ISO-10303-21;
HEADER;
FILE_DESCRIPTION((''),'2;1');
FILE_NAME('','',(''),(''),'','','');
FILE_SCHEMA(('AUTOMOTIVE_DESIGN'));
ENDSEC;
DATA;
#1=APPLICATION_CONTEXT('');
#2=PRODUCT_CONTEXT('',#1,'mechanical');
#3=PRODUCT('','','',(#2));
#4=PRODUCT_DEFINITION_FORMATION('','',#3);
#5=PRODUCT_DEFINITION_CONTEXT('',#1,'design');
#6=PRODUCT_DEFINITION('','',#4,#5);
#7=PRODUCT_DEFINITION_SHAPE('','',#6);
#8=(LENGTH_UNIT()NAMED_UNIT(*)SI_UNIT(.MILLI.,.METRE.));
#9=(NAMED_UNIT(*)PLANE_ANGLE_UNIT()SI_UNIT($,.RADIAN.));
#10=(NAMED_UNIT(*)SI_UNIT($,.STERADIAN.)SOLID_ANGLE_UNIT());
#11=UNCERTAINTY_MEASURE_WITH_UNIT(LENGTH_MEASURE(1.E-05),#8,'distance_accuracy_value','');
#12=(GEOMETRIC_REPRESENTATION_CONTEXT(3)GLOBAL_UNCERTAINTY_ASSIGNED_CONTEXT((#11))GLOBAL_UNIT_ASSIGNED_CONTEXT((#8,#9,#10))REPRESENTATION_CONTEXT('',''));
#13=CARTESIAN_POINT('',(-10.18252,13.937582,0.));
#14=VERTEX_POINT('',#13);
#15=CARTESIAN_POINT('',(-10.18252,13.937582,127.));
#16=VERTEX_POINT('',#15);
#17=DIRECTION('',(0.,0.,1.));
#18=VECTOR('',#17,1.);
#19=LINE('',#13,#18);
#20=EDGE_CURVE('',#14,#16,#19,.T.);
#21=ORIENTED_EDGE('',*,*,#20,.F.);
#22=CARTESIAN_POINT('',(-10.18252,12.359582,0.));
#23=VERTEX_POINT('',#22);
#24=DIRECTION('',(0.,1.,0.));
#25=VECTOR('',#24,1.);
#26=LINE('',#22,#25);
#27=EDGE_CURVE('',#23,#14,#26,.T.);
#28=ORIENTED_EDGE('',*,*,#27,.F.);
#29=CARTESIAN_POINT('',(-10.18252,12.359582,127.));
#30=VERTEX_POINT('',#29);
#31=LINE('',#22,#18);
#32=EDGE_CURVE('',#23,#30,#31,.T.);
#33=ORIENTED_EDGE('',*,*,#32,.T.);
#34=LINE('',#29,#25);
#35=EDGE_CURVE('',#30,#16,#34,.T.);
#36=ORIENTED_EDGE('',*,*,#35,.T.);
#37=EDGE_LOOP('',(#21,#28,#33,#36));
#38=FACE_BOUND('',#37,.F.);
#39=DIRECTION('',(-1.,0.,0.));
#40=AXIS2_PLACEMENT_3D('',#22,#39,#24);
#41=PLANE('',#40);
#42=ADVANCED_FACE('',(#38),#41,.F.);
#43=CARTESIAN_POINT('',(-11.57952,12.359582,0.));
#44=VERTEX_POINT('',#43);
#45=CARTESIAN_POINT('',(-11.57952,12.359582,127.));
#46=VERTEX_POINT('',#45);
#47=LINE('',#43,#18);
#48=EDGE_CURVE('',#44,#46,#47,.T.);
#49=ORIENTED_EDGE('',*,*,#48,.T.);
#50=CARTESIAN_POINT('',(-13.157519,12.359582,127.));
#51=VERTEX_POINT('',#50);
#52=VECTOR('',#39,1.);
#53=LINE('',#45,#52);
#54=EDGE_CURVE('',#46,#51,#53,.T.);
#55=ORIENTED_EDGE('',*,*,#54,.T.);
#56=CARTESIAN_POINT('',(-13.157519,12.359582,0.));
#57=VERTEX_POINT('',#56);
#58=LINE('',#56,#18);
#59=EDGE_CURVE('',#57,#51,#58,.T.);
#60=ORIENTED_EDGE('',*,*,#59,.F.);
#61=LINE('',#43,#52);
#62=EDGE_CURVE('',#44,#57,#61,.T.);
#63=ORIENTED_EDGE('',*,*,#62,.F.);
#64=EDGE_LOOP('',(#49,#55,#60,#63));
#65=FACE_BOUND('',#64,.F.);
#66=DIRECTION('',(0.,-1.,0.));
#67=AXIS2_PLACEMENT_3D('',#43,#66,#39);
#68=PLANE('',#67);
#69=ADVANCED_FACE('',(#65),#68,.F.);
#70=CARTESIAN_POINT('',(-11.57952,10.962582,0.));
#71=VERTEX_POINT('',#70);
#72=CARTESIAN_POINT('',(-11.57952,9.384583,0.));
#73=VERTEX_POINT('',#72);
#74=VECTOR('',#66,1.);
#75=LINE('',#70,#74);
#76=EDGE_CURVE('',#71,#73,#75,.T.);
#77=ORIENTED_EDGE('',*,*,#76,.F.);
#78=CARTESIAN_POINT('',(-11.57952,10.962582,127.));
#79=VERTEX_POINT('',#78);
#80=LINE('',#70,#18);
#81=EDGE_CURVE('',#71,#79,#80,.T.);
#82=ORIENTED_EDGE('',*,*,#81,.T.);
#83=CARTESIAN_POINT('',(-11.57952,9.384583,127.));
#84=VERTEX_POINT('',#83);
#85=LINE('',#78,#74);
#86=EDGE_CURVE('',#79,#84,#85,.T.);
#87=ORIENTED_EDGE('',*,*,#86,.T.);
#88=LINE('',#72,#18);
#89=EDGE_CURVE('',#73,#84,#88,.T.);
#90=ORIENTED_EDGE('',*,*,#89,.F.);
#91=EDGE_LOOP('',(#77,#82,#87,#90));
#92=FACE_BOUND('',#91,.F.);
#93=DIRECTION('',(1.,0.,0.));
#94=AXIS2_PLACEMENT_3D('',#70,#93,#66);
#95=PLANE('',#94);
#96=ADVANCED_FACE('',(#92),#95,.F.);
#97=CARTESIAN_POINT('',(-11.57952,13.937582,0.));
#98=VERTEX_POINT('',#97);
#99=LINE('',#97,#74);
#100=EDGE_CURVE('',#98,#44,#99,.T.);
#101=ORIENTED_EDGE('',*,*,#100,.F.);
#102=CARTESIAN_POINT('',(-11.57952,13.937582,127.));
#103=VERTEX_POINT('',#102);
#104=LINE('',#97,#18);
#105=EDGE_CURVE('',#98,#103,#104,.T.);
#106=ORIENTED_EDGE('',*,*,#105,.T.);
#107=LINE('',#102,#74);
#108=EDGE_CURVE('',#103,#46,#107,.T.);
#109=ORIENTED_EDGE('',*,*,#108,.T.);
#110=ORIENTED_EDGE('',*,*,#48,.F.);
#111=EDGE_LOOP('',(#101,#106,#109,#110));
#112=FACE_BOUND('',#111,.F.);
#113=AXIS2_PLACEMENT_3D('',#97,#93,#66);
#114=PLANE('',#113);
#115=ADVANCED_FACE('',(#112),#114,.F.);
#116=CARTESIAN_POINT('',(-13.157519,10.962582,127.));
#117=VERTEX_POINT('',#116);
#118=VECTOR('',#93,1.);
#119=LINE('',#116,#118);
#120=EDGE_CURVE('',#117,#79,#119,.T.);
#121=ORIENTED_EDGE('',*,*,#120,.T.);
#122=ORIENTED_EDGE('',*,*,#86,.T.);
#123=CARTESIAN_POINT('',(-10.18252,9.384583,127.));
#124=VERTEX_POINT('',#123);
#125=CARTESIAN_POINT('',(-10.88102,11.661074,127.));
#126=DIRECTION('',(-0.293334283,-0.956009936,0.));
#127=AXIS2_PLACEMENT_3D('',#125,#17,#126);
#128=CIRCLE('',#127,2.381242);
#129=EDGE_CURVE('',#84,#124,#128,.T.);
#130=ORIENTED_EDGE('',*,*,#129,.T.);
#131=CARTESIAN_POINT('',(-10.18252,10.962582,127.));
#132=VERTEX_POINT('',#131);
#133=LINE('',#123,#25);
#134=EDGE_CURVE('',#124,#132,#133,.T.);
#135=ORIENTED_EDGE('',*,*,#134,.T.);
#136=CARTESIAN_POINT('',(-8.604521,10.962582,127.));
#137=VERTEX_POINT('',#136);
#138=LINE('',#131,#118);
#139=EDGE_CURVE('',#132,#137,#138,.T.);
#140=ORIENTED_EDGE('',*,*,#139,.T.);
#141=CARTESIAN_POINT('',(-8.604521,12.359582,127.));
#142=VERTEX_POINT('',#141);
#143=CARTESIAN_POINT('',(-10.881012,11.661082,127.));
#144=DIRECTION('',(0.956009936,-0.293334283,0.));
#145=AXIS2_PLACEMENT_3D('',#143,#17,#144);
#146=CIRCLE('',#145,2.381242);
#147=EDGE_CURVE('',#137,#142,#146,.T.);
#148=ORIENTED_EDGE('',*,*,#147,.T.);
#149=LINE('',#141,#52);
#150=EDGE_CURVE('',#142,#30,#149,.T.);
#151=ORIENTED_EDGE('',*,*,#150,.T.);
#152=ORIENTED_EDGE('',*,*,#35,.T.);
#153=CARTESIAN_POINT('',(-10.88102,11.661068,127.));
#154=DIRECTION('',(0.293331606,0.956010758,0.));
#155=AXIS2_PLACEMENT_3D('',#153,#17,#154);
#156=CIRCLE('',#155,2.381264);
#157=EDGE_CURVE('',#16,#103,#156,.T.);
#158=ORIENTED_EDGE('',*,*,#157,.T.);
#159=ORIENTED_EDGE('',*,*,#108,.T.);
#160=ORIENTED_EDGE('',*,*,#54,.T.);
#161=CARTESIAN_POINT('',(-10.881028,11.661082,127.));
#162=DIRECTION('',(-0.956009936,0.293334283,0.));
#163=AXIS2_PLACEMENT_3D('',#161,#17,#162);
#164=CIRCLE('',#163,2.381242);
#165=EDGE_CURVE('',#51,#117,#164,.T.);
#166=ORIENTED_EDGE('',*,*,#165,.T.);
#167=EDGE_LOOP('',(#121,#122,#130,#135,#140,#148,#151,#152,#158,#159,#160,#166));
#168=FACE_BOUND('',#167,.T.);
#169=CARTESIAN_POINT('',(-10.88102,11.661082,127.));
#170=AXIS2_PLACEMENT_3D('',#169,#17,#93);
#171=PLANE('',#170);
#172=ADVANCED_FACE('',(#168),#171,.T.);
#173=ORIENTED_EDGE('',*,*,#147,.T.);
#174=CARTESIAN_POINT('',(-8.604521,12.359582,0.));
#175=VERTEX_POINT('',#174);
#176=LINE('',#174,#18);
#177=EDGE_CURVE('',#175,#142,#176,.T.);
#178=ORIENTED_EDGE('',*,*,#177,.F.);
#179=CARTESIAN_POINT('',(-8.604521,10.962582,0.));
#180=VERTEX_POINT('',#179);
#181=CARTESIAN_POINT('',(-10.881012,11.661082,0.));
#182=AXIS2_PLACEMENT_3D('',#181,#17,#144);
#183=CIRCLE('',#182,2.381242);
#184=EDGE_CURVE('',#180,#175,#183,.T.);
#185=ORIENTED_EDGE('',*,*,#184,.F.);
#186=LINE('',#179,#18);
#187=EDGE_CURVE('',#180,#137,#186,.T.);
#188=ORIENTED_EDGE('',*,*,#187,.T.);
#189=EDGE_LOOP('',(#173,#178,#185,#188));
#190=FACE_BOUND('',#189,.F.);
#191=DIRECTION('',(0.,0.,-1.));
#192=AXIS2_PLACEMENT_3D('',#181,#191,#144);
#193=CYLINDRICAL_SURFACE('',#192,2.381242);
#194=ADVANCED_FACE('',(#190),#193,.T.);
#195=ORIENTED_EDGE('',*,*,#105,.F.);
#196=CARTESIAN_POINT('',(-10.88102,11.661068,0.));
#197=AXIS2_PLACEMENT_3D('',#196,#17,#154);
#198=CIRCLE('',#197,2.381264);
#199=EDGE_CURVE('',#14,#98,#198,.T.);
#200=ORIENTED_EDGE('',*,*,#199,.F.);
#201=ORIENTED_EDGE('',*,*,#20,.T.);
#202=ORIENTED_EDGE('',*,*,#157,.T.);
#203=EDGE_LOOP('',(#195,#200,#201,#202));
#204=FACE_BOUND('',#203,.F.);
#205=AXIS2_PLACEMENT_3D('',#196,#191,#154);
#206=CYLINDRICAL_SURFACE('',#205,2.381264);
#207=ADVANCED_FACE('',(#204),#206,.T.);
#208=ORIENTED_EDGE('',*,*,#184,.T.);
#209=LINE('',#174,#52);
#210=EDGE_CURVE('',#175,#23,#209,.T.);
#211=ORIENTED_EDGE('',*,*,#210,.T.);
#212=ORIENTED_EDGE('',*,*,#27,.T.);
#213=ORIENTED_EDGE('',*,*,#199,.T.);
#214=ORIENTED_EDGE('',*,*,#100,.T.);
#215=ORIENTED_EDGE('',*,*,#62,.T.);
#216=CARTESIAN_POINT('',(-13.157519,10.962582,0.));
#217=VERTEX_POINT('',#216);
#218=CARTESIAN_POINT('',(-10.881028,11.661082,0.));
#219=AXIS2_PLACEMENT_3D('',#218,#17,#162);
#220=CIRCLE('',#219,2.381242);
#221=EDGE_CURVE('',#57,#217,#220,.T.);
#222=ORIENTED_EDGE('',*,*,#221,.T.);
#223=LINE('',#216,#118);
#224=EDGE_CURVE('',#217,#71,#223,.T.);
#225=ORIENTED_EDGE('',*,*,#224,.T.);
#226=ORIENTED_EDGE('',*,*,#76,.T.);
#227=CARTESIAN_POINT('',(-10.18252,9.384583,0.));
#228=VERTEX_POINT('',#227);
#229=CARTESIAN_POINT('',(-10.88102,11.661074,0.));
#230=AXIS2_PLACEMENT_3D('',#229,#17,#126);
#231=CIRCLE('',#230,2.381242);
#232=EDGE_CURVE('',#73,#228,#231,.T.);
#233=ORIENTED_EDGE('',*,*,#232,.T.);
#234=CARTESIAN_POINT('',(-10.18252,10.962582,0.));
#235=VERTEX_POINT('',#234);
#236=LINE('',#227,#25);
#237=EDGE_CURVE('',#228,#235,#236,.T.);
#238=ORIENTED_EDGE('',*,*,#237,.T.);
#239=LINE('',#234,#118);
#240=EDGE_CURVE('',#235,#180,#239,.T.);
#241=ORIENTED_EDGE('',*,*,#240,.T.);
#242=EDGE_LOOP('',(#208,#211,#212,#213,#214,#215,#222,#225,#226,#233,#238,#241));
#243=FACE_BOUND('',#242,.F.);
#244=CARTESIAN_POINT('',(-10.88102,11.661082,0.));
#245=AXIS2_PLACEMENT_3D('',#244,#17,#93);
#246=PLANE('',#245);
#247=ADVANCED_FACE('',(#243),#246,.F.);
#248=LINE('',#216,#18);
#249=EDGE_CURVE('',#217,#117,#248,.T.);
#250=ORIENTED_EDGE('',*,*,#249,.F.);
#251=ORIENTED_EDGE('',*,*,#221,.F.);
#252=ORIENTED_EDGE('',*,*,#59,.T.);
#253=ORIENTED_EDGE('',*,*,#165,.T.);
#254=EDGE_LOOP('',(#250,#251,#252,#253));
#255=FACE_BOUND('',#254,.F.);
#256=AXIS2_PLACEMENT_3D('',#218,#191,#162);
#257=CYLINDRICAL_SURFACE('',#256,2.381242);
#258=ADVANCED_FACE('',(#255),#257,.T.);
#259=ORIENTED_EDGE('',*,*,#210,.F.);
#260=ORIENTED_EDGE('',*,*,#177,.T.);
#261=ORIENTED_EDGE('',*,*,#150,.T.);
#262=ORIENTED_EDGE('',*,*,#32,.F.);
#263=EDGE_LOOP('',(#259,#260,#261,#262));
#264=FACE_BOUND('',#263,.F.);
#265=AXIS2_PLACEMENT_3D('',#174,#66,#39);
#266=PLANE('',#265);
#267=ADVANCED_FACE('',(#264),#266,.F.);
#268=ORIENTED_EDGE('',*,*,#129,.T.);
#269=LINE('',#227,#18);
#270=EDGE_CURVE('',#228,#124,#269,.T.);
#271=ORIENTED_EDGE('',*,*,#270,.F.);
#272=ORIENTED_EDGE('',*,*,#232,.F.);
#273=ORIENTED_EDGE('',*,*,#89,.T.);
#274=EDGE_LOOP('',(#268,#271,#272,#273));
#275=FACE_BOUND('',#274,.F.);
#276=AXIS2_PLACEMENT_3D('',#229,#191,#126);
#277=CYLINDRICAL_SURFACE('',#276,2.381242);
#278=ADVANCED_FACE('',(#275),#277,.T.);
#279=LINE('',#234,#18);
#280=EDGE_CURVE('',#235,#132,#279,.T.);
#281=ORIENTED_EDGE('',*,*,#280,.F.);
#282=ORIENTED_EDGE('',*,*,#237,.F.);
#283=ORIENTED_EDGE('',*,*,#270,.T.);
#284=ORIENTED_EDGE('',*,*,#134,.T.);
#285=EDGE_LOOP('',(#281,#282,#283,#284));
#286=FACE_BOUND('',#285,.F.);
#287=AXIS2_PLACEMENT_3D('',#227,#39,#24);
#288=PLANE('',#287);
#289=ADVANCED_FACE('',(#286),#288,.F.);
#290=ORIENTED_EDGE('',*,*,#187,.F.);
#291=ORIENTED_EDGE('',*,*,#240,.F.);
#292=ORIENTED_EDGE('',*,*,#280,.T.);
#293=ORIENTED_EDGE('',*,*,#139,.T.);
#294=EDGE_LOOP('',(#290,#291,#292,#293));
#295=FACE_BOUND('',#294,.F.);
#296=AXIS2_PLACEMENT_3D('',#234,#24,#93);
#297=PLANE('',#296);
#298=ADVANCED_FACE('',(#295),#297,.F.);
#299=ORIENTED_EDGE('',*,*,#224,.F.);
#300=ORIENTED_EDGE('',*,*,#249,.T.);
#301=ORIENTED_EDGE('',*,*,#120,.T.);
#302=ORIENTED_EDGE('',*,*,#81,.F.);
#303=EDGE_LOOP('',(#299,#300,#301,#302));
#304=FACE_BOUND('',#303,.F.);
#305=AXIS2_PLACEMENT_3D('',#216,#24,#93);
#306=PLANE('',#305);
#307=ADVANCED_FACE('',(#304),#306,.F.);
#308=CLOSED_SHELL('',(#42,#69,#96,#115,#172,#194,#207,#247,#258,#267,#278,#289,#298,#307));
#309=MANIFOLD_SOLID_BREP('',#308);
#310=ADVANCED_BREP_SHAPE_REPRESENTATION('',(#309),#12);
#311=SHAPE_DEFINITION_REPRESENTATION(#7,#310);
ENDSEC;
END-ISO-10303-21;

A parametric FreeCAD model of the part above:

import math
import FreeCAD as App
import Part
import Sketcher
from FreeCAD import Vector
Q = App.Units.Quantity

doc = App.newDocument("Part")
body = doc.addObject("PartDesign::Body", "Body")

# Sketch on XY plane
sketch1 = doc.addObject("Sketcher::SketchObject", "Sketch")
body.addObject(sketch1)
sketch1.AttachmentSupport = (doc.XY_Plane, [""])
sketch1.MapMode = "FlatFace"
sketch1.addGeometry(Part.LineSegment(Vector(-11.57952, 10.962582, 0), Vector(-11.57952, 9.384583, 0)), False)
sketch1.addGeometry(Part.ArcOfCircle(Part.Circle(Vector(-10.88102, 11.661074, 0), Vector(0, 0, 1), 2.381242), math.radians(-107.057681), math.radians(-72.942319)), False)
sketch1.addGeometry(Part.LineSegment(Vector(-10.18252, 9.384583, 0), Vector(-10.18252, 10.962582, 0)), False)
sketch1.addGeometry(Part.LineSegment(Vector(-10.18252, 10.962582, 0), Vector(-8.604521, 10.962582, 0)), False)
sketch1.addGeometry(Part.ArcOfCircle(Part.Circle(Vector(-10.881012, 11.661082, 0), Vector(0, 0, 1), 2.381242), math.radians(-17.057681), math.radians(17.057681)), False)
sketch1.addGeometry(Part.LineSegment(Vector(-8.604521, 12.359582, 0), Vector(-10.18252, 12.359582, 0)), False)
sketch1.addGeometry(Part.LineSegment(Vector(-10.18252, 12.359582, 0), Vector(-10.18252, 13.937582, 0)), False)
sketch1.addGeometry(Part.ArcOfCircle(Part.Circle(Vector(-10.88102, 11.661068, 0), Vector(0, 0, 1), 2.381264), math.radians(72.94248), math.radians(107.05752)), False)
sketch1.addGeometry(Part.LineSegment(Vector(-11.57952, 13.937582, 0), Vector(-11.57952, 12.359582, 0)), False)
sketch1.addGeometry(Part.LineSegment(Vector(-11.57952, 12.359582, 0), Vector(-13.157519, 12.359582, 0)), False)
sketch1.addGeometry(Part.ArcOfCircle(Part.Circle(Vector(-10.881028, 11.661082, 0), Vector(0, 0, 1), 2.381242), math.radians(162.942319), math.radians(197.057681)), False)
sketch1.addGeometry(Part.LineSegment(Vector(-13.157519, 10.962582, 0), Vector(-11.57952, 10.962582, 0)), False)
sketch1.addConstraint(Sketcher.Constraint("Coincident", 0, 2, 1, 1))
sketch1.addConstraint(Sketcher.Constraint("Coincident", 1, 2, 2, 1))
sketch1.addConstraint(Sketcher.Constraint("Coincident", 2, 2, 3, 1))
sketch1.addConstraint(Sketcher.Constraint("Coincident", 3, 2, 4, 1))
sketch1.addConstraint(Sketcher.Constraint("Coincident", 4, 2, 5, 1))
sketch1.addConstraint(Sketcher.Constraint("Coincident", 5, 2, 6, 1))
sketch1.addConstraint(Sketcher.Constraint("Coincident", 6, 2, 7, 1))
sketch1.addConstraint(Sketcher.Constraint("Coincident", 7, 2, 8, 1))
sketch1.addConstraint(Sketcher.Constraint("Coincident", 8, 2, 9, 1))
sketch1.addConstraint(Sketcher.Constraint("Coincident", 9, 2, 10, 1))
sketch1.addConstraint(Sketcher.Constraint("Coincident", 10, 2, 11, 1))
sketch1.addConstraint(Sketcher.Constraint("Coincident", 11, 2, 0, 1))
sketch1.addConstraint(Sketcher.Constraint("Vertical", 0))
sketch1.addConstraint(Sketcher.Constraint("Vertical", 2))
sketch1.addConstraint(Sketcher.Constraint("Horizontal", 3))
sketch1.addConstraint(Sketcher.Constraint("Horizontal", 5))
sketch1.addConstraint(Sketcher.Constraint("Vertical", 6))
sketch1.addConstraint(Sketcher.Constraint("Vertical", 8))
sketch1.addConstraint(Sketcher.Constraint("Horizontal", 9))
sketch1.addConstraint(Sketcher.Constraint("Horizontal", 11))
sketch1.addConstraint(Sketcher.Constraint("Coincident", 7, 3, 1, 3))
sketch1.addConstraint(Sketcher.Constraint("Equal", 1, 4))
sketch1.addConstraint(Sketcher.Constraint("Equal", 4, 10))
sketch1.addConstraint(Sketcher.Constraint("Horizontal", 4, 3, 10, 3))
sketch1.addConstraint(Sketcher.Constraint("Horizontal", 0, 2, 1, 2))
sketch1.addConstraint(Sketcher.Constraint("Horizontal", 6, 2, 7, 2))
sketch1.addConstraint(Sketcher.Constraint("Horizontal", 5, 2, 8, 2))
sketch1.addConstraint(Sketcher.Constraint("Horizontal", 3, 2, 10, 2))
sketch1.addConstraint(Sketcher.Constraint("Vertical", 3, 2, 4, 2))
sketch1.addConstraint(Sketcher.Constraint("Vertical", 2, 2, 5, 2))
sketch1.addConstraint(Sketcher.Constraint("Equal", 5, 9))
sketch1.addConstraint(Sketcher.Constraint("Equal", 11, 0))
sketch1.addConstraint(Sketcher.Constraint("Equal", 2, 6))
sketch1.addConstraint(Sketcher.Constraint("DistanceX", 0, 2, 1, 2, Q("0.055 in")))
sketch1.addConstraint(Sketcher.Constraint("DistanceY", 3, 2, 4, 2, Q("0.055 in")))
sketch1.addConstraint(Sketcher.Constraint("DistanceX", 3, 1, 3, 2, 1.577999))
sketch1.addConstraint(Sketcher.Constraint("Radius", 1, 2.381242))
sketch1.addConstraint(Sketcher.Constraint("DistanceX", 1, 3, -1, 1, 10.88102))
sketch1.addConstraint(Sketcher.Constraint("DistanceY", -1, 1, 2, 2, 10.962582))
pad1 = doc.addObject("PartDesign::Pad", "Pad")
body.addObject(pad1)
pad1.Profile = sketch1
pad1.Length = Q("5 in")

doc.recompute()
